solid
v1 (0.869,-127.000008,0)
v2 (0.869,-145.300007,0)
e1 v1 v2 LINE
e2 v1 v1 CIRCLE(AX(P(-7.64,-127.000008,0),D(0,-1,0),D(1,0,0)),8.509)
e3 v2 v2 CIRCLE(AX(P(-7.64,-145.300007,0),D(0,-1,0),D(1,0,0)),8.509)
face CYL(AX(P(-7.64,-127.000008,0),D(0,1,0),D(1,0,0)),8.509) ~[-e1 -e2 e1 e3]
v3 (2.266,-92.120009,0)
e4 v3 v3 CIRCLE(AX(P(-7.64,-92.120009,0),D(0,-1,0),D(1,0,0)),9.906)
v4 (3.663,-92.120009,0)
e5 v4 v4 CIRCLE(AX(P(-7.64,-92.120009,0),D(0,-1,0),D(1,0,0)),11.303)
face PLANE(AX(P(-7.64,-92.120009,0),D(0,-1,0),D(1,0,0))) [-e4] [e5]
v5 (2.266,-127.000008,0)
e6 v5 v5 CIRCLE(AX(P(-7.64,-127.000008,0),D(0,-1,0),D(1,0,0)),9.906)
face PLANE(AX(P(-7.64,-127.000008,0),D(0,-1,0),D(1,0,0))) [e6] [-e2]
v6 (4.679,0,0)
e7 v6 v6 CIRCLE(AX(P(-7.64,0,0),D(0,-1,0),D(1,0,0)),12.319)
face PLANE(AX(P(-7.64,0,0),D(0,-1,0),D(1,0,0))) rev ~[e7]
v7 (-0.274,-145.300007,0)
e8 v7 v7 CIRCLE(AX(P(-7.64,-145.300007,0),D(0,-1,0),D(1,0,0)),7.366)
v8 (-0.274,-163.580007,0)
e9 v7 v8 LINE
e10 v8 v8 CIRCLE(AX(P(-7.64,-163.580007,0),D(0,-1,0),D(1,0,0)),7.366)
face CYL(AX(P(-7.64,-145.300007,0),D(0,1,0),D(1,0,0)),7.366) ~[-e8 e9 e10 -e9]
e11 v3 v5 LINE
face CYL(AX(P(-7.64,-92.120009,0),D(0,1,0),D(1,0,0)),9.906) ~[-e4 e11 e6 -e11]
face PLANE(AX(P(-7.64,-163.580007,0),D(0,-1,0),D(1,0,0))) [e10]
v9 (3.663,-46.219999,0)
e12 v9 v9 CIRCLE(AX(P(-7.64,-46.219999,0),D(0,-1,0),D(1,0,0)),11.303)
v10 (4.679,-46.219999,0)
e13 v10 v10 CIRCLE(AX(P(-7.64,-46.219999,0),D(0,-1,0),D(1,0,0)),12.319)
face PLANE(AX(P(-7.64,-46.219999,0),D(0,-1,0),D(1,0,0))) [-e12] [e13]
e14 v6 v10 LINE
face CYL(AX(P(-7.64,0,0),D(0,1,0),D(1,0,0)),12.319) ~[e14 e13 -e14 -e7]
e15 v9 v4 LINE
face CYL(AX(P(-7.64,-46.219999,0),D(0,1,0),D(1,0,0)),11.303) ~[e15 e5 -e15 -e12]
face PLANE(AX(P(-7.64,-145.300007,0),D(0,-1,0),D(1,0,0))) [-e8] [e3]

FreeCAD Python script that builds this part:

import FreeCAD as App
import Part
import Sketcher
from FreeCAD import Vector
Q = App.Units.Quantity

doc = App.newDocument("Part")
body = doc.addObject("PartDesign::Body", "Body")

# Sketch on XZ plane
sketch1 = doc.addObject("Sketcher::SketchObject", "Sketch")
body.addObject(sketch1)
sketch1.AttachmentSupport = (doc.XZ_Plane, [""])
sketch1.MapMode = "FlatFace"
sketch1.addGeometry(Part.Circle(Vector(-8, 0, 0), Vector(0, 0, 1), 12), False)
sketch1.addConstraint([
    Sketcher.Constraint("PointOnObject", 0, 3, -1),
    Sketcher.Constraint("Diameter", 0, Q("0.97 in")),
    Sketcher.Constraint("DistanceX", 0, 3, -1, 1, Q("7.64 mm")),
])
pad1 = doc.addObject("PartDesign::Pad", "Pad")
body.addObject(pad1)
pad1.Profile = sketch1
pad1.Length = 46.219999

# Sketch on XZ plane
sketch2 = doc.addObject("Sketcher::SketchObject", "Sketch001")
body.addObject(sketch2)
sketch2.AttachmentSupport = (doc.XZ_Plane, [""])
sketch2.MapMode = "FlatFace"
sketch2.AttachmentOffset = App.Placement(Vector(0, 0, 46.219999), App.Rotation())
sketch2.addGeometry(Part.Circle(Vector(-8, 0, 0), Vector(0, 0, 1), 11), False)
sketch2.addConstraint([
    Sketcher.Constraint("PointOnObject", 0, 3, -1),
    Sketcher.Constraint("Diameter", 0, Q("0.89 in")),
    Sketcher.Constraint("DistanceX", 0, 3, -1, 1, Q("7.64 mm")),
])
pad2 = doc.addObject("PartDesign::Pad", "Pad001")
body.addObject(pad2)
pad2.Profile = sketch2
pad2.Length = 45.90001

# Sketch on XZ plane
sketch3 = doc.addObject("Sketcher::SketchObject", "Sketch002")
body.addObject(sketch3)
sketch3.AttachmentSupport = (doc.XZ_Plane, [""])
sketch3.MapMode = "FlatFace"
sketch3.AttachmentOffset = App.Placement(Vector(0, 0, 92.120009), App.Rotation())
sketch3.addGeometry(Part.Circle(Vector(-8, 0, 0), Vector(0, 0, 1), 10), False)
sketch3.addConstraint([
    Sketcher.Constraint("PointOnObject", 0, 3, -1),
    Sketcher.Constraint("Diameter", 0, Q("0.78 in")),
    Sketcher.Constraint("DistanceX", 0, 3, -1, 1, Q("7.64 mm")),
])
pad3 = doc.addObject("PartDesign::Pad", "Pad002")
body.addObject(pad3)
pad3.Profile = sketch3
pad3.Length = 34.879999

# Sketch on XZ plane
sketch4 = doc.addObject("Sketcher::SketchObject", "Sketch003")
body.addObject(sketch4)
sketch4.AttachmentSupport = (doc.XZ_Plane, [""])
sketch4.MapMode = "FlatFace"
sketch4.AttachmentOffset = App.Placement(Vector(0, 0, 127.000008), App.Rotation())
sketch4.addGeometry(Part.Circle(Vector(-8, 0, 0), Vector(0, 0, 1), 9), False)
sketch4.addConstraint([
    Sketcher.Constraint("PointOnObject", 0, 3, -1),
    Sketcher.Constraint("Diameter", 0, Q("0.67 in")),
    Sketcher.Constraint("DistanceX", 0, 3, -1, 1, Q("7.64 mm")),
])
pad4 = doc.addObject("PartDesign::Pad", "Pad003")
body.addObject(pad4)
pad4.Profile = sketch4
pad4.Length = 18.299999

# Sketch on XZ plane
sketch5 = doc.addObject("Sketcher::SketchObject", "Sketch004")
body.addObject(sketch5)
sketch5.AttachmentSupport = (doc.XZ_Plane, [""])
sketch5.MapMode = "FlatFace"
sketch5.AttachmentOffset = App.Placement(Vector(0, 0, 145.300007), App.Rotation())
sketch5.addGeometry(Part.Circle(Vector(-8, 0, 0), Vector(0, 0, 1), 7), False)
sketch5.addConstraint([
    Sketcher.Constraint("PointOnObject", 0, 3, -1),
    Sketcher.Constraint("Diameter", 0, Q("0.58 in")),
    Sketcher.Constraint("DistanceX", 0, 3, -1, 1, Q("7.64 mm")),
])
pad5 = doc.addObject("PartDesign::Pad", "Pad004")
body.addObject(pad5)
pad5.Profile = sketch5
pad5.Length = 18.28

doc.recompute()
